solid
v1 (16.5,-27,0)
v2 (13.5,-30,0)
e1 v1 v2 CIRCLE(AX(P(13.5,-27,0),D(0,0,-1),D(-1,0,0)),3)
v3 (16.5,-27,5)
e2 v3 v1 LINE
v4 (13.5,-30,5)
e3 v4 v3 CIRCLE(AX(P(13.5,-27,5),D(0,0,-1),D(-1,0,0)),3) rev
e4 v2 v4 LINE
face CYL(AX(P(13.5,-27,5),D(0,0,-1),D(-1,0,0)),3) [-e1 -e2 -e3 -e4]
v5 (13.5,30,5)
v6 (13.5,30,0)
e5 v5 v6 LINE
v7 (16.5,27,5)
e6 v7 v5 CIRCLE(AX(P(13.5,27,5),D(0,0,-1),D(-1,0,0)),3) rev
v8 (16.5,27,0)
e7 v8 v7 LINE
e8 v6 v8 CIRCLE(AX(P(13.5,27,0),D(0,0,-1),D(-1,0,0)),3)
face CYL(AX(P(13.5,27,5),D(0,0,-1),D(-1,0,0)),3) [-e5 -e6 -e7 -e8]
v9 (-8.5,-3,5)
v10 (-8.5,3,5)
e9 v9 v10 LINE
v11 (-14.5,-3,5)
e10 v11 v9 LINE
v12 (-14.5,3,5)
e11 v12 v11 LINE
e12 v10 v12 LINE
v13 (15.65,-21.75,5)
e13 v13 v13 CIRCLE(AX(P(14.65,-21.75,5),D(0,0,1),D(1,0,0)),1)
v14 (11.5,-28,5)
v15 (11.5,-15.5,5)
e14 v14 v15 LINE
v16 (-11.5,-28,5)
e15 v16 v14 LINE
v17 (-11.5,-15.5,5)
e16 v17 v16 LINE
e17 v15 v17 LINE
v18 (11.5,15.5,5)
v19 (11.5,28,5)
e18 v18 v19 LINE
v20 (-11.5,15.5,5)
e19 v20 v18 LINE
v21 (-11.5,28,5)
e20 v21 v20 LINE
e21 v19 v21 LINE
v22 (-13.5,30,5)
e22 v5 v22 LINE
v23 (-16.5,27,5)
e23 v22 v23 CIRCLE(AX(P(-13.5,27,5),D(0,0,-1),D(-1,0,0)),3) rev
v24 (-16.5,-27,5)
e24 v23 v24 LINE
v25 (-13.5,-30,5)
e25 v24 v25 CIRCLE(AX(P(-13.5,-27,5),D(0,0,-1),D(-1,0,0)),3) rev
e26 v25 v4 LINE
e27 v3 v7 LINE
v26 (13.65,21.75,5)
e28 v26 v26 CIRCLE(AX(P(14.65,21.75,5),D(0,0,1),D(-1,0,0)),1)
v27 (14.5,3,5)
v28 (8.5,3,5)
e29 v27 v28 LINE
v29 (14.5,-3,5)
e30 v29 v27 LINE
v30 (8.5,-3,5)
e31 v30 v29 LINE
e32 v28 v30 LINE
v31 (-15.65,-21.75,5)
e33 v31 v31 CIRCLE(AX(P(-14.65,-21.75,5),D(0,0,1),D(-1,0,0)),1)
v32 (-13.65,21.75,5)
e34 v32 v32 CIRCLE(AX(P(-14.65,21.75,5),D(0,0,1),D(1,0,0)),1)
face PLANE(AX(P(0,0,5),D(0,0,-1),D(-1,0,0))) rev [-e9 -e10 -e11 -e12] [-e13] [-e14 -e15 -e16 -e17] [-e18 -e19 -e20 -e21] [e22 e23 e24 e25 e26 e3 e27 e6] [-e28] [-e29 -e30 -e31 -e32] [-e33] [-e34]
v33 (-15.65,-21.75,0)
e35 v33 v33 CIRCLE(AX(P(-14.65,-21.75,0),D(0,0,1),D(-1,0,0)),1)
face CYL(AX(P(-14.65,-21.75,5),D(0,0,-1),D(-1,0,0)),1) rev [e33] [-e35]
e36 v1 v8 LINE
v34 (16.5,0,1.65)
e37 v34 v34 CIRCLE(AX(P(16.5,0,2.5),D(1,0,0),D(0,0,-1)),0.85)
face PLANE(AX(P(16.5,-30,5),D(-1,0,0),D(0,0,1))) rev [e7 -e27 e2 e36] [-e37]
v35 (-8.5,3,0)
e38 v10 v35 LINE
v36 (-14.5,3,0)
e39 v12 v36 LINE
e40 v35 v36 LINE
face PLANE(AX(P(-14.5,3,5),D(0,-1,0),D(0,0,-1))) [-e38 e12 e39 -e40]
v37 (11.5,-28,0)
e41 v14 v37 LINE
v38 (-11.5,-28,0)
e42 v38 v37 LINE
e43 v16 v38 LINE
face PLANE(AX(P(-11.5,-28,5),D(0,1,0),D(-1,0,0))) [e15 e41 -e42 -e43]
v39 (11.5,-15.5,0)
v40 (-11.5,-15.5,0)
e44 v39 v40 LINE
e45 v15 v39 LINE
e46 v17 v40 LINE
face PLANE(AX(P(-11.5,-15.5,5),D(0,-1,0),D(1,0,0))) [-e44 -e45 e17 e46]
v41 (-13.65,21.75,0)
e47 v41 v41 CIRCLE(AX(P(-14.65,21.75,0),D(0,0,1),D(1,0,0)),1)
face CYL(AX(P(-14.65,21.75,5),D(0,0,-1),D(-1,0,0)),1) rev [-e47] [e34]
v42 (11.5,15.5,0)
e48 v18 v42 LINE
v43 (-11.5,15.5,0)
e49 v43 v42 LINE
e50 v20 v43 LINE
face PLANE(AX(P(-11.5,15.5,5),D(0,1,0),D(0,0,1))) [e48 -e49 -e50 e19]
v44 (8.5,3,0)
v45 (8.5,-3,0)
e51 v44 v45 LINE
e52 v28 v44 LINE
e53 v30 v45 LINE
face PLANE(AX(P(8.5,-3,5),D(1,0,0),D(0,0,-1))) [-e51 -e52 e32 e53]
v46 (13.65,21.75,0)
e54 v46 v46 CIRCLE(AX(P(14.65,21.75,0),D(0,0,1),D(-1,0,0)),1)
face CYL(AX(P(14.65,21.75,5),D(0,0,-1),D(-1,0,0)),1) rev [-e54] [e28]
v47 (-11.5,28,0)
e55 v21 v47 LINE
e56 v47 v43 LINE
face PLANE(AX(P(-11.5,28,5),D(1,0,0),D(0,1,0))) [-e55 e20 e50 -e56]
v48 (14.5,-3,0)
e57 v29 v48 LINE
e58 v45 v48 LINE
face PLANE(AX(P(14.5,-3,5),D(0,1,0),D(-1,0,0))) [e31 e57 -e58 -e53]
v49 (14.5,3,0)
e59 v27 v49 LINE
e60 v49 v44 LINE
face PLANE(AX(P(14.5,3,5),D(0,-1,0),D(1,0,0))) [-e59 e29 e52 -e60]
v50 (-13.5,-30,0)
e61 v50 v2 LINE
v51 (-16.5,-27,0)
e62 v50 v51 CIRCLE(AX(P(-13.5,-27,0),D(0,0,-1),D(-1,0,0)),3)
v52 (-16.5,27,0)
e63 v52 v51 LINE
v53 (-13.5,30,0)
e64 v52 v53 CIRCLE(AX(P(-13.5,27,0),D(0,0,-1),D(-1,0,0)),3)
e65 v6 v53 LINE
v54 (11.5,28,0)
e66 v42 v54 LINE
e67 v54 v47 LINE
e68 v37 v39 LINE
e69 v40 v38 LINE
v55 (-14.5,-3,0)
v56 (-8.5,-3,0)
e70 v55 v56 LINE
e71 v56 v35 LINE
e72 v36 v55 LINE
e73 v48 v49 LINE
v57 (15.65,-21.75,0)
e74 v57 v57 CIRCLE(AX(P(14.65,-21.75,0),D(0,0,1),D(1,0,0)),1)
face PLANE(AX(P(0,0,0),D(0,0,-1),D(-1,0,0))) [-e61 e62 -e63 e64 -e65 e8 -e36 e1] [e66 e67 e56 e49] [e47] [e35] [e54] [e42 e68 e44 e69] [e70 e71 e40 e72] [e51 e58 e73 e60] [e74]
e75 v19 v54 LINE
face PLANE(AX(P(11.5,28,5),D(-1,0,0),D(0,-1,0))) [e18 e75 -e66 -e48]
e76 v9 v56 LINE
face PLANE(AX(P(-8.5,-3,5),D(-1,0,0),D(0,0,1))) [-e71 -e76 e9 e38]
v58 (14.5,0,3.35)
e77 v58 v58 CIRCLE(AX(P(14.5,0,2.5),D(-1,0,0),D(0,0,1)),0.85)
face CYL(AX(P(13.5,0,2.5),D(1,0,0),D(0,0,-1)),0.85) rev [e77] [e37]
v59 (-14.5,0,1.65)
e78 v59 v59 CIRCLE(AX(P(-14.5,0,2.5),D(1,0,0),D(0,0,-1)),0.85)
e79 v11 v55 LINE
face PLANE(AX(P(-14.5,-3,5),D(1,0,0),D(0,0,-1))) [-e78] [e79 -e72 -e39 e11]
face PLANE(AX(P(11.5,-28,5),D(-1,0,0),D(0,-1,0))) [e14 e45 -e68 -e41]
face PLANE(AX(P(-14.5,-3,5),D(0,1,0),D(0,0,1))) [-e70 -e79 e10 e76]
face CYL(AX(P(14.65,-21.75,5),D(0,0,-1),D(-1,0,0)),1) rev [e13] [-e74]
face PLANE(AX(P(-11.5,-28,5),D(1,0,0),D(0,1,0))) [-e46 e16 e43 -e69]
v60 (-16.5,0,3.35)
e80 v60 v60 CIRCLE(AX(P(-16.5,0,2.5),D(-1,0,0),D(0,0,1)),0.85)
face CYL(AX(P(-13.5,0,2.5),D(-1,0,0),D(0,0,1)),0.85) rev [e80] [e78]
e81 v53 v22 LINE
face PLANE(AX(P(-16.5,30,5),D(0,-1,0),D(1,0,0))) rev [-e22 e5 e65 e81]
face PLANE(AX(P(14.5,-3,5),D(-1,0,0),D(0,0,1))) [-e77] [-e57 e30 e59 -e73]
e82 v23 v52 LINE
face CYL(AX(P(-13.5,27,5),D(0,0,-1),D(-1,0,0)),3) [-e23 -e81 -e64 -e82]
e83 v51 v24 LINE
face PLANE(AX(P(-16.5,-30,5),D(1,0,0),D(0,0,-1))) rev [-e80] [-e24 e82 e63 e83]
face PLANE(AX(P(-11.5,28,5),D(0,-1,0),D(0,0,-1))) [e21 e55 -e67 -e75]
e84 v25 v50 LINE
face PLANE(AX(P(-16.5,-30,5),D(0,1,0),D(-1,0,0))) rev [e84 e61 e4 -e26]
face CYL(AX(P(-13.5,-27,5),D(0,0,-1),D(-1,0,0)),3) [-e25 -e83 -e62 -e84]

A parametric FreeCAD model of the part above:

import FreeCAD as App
import Part
import Sketcher
from FreeCAD import Vector
Q = App.Units.Quantity


def edges_at(feature, points):
    """Names of the edges that pass closest to the given points."""
    edges = feature.Shape.Edges
    near = lambda p: min(range(len(edges)), key=lambda i: edges[i].distToShape(Part.Vertex(*p))[0])
    return sorted({f"Edge{near(p) + 1}" for p in points})

doc = App.newDocument("Part")
body = doc.addObject("PartDesign::Body", "Body")

sketch1 = doc.addObject("Sketcher::SketchObject", "Sketch")
body.addObject(sketch1)
sketch1.AttachmentSupport = (doc.XY_Plane, [""])
sketch1.MapMode = "FlatFace"
sketch1.addGeometry([
    Part.LineSegment(Vector(-16.5, 30, 0), Vector(-16.5, -30, 0)),
    Part.LineSegment(Vector(-16.5, -30, 0), Vector(16.5, -30, 0)),
    Part.LineSegment(Vector(16.5, -30, 0), Vector(16.5, 30, 0)),
    Part.LineSegment(Vector(16.5, 30, 0), Vector(-16.5, 30, 0)),
    Part.Circle(Vector(-14.7, -21.8, 0), Vector(0, 0, 1), 1),
    Part.LineSegment(Vector(11.5, -28, 0), Vector(-11.5, -28, 0)),
    Part.LineSegment(Vector(-11.5, -28, 0), Vector(-11.5, -15.5, 0)),
    Part.LineSegment(Vector(-11.5, -15.5, 0), Vector(11.5, -15.5, 0)),
    Part.LineSegment(Vector(11.5, -15.5, 0), Vector(11.5, -28, 0)),
    Part.Circle(Vector(14.7, -21.8, 0), Vector(0, 0, 1), 1),
    Part.LineSegment(Vector(-8.5, -3, 0), Vector(-14.5, -3, 0)),
    Part.LineSegment(Vector(-14.5, -3, 0), Vector(-14.5, 3, 0)),
    Part.LineSegment(Vector(-14.5, 3, 0), Vector(-8.5, 3, 0)),
    Part.LineSegment(Vector(-8.5, 3, 0), Vector(-8.5, -3, 0)),
    Part.Circle(Vector(-14.7, 21.8, 0), Vector(0, 0, 1), 1),
    Part.LineSegment(Vector(14.5, -3, 0), Vector(8.5, -3, 0)),
    Part.LineSegment(Vector(8.5, -3, 0), Vector(8.5, 3, 0)),
    Part.LineSegment(Vector(8.5, 3, 0), Vector(14.5, 3, 0)),
    Part.LineSegment(Vector(14.5, 3, 0), Vector(14.5, -3, 0)),
    Part.LineSegment(Vector(11.5, 15.5, 0), Vector(-11.5, 15.5, 0)),
    Part.LineSegment(Vector(-11.5, 15.5, 0), Vector(-11.5, 28, 0)),
    Part.LineSegment(Vector(-11.5, 28, 0), Vector(11.5, 28, 0)),
    Part.LineSegment(Vector(11.5, 28, 0), Vector(11.5, 15.5, 0)),
    Part.Circle(Vector(14.7, 21.8, 0), Vector(0, 0, 1), 1),
], False)
sketch1.addConstraint([
    Sketcher.Constraint("Coincident", 0, 2, 1, 1),
    Sketcher.Constraint("Coincident", 1, 2, 2, 1),
    Sketcher.Constraint("Coincident", 2, 2, 3, 1),
    Sketcher.Constraint("Coincident", 3, 2, 0, 1),
    Sketcher.Constraint("Coincident", 5, 2, 6, 1),
    Sketcher.Constraint("Coincident", 6, 2, 7, 1),
    Sketcher.Constraint("Coincident", 7, 2, 8, 1),
    Sketcher.Constraint("Coincident", 8, 2, 5, 1),
    Sketcher.Constraint("Coincident", 10, 2, 11, 1),
    Sketcher.Constraint("Coincident", 11, 2, 12, 1),
    Sketcher.Constraint("Coincident", 12, 2, 13, 1),
    Sketcher.Constraint("Coincident", 13, 2, 10, 1),
    Sketcher.Constraint("Coincident", 15, 2, 16, 1),
    Sketcher.Constraint("Coincident", 16, 2, 17, 1),
    Sketcher.Constraint("Coincident", 17, 2, 18, 1),
    Sketcher.Constraint("Coincident", 18, 2, 15, 1),
    Sketcher.Constraint("Coincident", 19, 2, 20, 1),
    Sketcher.Constraint("Coincident", 20, 2, 21, 1),
    Sketcher.Constraint("Coincident", 21, 2, 22, 1),
    Sketcher.Constraint("Coincident", 22, 2, 19, 1),
    Sketcher.Constraint("Vertical", 0),
    Sketcher.Constraint("Horizontal", 1),
    Sketcher.Constraint("Vertical", 2),
    Sketcher.Constraint("Horizontal", 3),
    Sketcher.Constraint("Horizontal", 5),
    Sketcher.Constraint("Vertical", 6),
    Sketcher.Constraint("Horizontal", 7),
    Sketcher.Constraint("Vertical", 8),
    Sketcher.Constraint("Horizontal", 10),
    Sketcher.Constraint("Vertical", 11),
    Sketcher.Constraint("Horizontal", 12),
    Sketcher.Constraint("Vertical", 13),
    Sketcher.Constraint("Horizontal", 15),
    Sketcher.Constraint("Vertical", 16),
    Sketcher.Constraint("Horizontal", 17),
    Sketcher.Constraint("Vertical", 18),
    Sketcher.Constraint("Horizontal", 19),
    Sketcher.Constraint("Vertical", 20),
    Sketcher.Constraint("Horizontal", 21),
    Sketcher.Constraint("Vertical", 22),
    Sketcher.Constraint("Equal", 4, 9),
    Sketcher.Constraint("Equal", 9, 14),
    Sketcher.Constraint("Equal", 14, 23),
    Sketcher.Constraint("Symmetric", 9, 3, 14, 3, -1, 1),
    Sketcher.Constraint("Symmetric", 4, 3, 23, 3, -1, 1),
    Sketcher.Constraint("Symmetric", 0, 2, 2, 2, -1, 1),
    Sketcher.Constraint("Symmetric", 12, 2, 15, 2, -1, 1),
    Sketcher.Constraint("Symmetric", 10, 2, 17, 2, -1, 1),
    Sketcher.Constraint("Symmetric", 7, 2, 19, 2, -1, 1),
    Sketcher.Constraint("Symmetric", 5, 2, 21, 2, -1, 1),
    Sketcher.Constraint("Symmetric", 4, 3, 9, 3, -2),
    Sketcher.Constraint("Horizontal", 13, 2, 15, 2),
    Sketcher.Constraint("Vertical", 6, 2, 19, 2),
    Sketcher.Constraint("Equal", 17, 11),
    Sketcher.Constraint("Diameter", 4, Q("2 mm")),
    Sketcher.Constraint("DistanceX", 1, 1, 1, 2, Q("33 mm")),
    Sketcher.Constraint("DistanceX", 5, 2, 5, 1, Q("23 mm")),
    Sketcher.Constraint("DistanceX", 10, 2, 10, 1, Q("6 mm")),
    Sketcher.Constraint("DistanceY", 0, 2, 0, 1, Q("60 mm")),
    Sketcher.Constraint("DistanceY", 6, 1, 6, 2, Q("12.5 mm")),
    Sketcher.Constraint("DistanceY", 5, 2, -1, 1, Q("28 mm")),
    Sketcher.Constraint("DistanceX", 10, 2, 6, 2, Q("3 mm")),
    Sketcher.Constraint("DistanceX", 4, 3, 9, 3, Q("29.3 mm")),
    Sketcher.Constraint("DistanceY", 4, 3, 14, 3, Q("43.5 mm")),
])
pad1 = doc.addObject("PartDesign::Pad", "Pad")
body.addObject(pad1)
pad1.Profile = sketch1
pad1.Length = 5

sketch2 = doc.addObject("Sketcher::SketchObject", "Sketch001")
body.addObject(sketch2)
sketch2.AttachmentSupport = (doc.YZ_Plane, [""])
sketch2.MapMode = "FlatFace"
sketch2.AttachmentOffset = App.Placement(Vector(0, 0, 16.5), App.Rotation())
sketch2.addGeometry(Part.Circle(Vector(0, 2.5, 0), Vector(0, 0, 1), 0.8), False)
sketch2.addConstraint([
    Sketcher.Constraint("PointOnObject", 0, 3, -2),
    Sketcher.Constraint("Diameter", 0, Q("1.7 mm")),
    Sketcher.Constraint("DistanceY", -1, 1, 0, 3, Q("2.5 mm")),
])
pocket1 = doc.addObject("PartDesign::Pocket", "Pocket")
body.addObject(pocket1)
pocket1.Profile = sketch2
pocket1.Length = 3

sketch3 = doc.addObject("Sketcher::SketchObject", "Sketch002")
body.addObject(sketch3)
sketch3.AttachmentSupport = (doc.YZ_Plane, [""])
sketch3.MapMode = "FlatFace"
sketch3.AttachmentOffset = App.Placement(Vector(0, 0, -13.5), App.Rotation())
sketch3.addGeometry(Part.Circle(Vector(0, 2.5, 0), Vector(0, 0, 1), 0.8), False)
sketch3.addConstraint([
    Sketcher.Constraint("PointOnObject", 0, 3, -2),
    Sketcher.Constraint("Diameter", 0, Q("1.7 mm")),
    Sketcher.Constraint("DistanceY", -1, 1, 0, 3, Q("2.5 mm")),
])
pocket2 = doc.addObject("PartDesign::Pocket", "Pocket001")
body.addObject(pocket2)
pocket2.Profile = sketch3
pocket2.Length = 3
doc.recompute()

fillet = doc.addObject("PartDesign::Fillet", "Fillet")
body.addObject(fillet)
fillet.Base = (pocket2, edges_at(pocket2, [
    (16.5, -30, 2.5),
    (-16.5, -30, 2.5),
    (-16.5, 30, 2.5),
    (16.5, 30, 2.5),
]))
fillet.Radius = 3

doc.recompute()
